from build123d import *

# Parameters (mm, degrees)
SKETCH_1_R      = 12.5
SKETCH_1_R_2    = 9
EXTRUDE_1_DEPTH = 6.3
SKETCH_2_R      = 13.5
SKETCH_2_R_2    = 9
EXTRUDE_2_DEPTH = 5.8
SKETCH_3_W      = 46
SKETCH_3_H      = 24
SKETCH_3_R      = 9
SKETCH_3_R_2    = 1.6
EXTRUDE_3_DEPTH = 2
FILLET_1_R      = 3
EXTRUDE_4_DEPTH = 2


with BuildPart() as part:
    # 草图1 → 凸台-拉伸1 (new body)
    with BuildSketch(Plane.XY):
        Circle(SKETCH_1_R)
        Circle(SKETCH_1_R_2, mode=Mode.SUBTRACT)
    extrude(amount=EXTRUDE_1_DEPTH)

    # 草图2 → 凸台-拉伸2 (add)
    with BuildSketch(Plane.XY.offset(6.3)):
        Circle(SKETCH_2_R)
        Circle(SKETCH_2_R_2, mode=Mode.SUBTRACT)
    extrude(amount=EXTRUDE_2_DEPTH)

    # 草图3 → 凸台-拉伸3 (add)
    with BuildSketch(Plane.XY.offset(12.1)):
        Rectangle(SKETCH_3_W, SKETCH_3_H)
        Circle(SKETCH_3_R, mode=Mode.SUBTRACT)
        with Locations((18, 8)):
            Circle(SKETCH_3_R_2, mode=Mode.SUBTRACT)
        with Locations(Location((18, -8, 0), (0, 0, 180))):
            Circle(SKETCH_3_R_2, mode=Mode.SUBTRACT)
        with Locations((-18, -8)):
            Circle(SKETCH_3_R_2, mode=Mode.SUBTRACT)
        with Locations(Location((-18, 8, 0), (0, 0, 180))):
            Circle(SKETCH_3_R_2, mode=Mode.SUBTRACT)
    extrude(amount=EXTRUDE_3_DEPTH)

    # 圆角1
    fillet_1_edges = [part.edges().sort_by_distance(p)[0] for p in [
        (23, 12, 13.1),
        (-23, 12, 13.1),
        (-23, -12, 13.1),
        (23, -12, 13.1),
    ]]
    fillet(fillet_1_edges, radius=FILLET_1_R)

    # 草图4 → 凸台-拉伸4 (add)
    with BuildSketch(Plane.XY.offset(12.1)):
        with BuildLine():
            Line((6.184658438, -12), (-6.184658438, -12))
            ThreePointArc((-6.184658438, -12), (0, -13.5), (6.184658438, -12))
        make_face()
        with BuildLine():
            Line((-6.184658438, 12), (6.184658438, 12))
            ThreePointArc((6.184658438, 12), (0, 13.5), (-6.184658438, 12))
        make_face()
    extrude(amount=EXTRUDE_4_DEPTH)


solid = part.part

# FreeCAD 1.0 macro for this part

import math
import FreeCAD as App
import Part
import Sketcher
from FreeCAD import Vector


def edges_at(feature, points):
    """Names of the edges that pass closest to the given points."""
    edges = feature.Shape.Edges
    near = lambda p: min(range(len(edges)), key=lambda i: edges[i].distToShape(Part.Vertex(*p))[0])
    return sorted({f"Edge{near(p) + 1}" for p in points})


def add_polygon(sketch, points):
    """Adds a closed chain of lines whose ends are joined by coincident constraints."""
    first, n = sketch.GeometryCount, len(points)
    for a, b in zip(points, points[1:] + points[:1]):
        sketch.addGeometry(Part.LineSegment(App.Vector(*a, 0), App.Vector(*b, 0)), False)
    for i in range(n):
        sketch.addConstraint(Sketcher.Constraint("Coincident", first + i, 2, first + (i + 1) % n, 1))

doc = App.newDocument("Part")
body = doc.addObject("PartDesign::Body", "Body")

# Sketch on XY plane
sketch1 = body.newObject("Sketcher::SketchObject", "Sketch")
sketch1.AttachmentSupport = (doc.getObject("XY_Plane"), [""])
sketch1.MapMode = "FlatFace"
sketch1.addGeometry([
    Part.Circle(Vector(0, 0, 0), Vector(0, 0, 1), 12),
    Part.Circle(Vector(0, 0, 0), Vector(0, 0, 1), 9),
], False)
sketch1.addConstraint([
    Sketcher.Constraint("Coincident", 0, 3, -1, 1),
    Sketcher.Constraint("Coincident", 1, 3, -1, 1),
    Sketcher.Constraint("Diameter", 0, 25.0),
    Sketcher.Constraint("Diameter", 1, 18.0),
])
pad1 = body.newObject("PartDesign::Pad", "Pad")
pad1.Profile = sketch1
pad1.Length = 6.3

# Sketch on XY plane
sketch2 = body.newObject("Sketcher::SketchObject", "Sketch001")
sketch2.AttachmentSupport = (doc.getObject("XY_Plane"), [""])
sketch2.MapMode = "FlatFace"
sketch2.AttachmentOffset = App.Placement(Vector(0, 0, 6.3), App.Rotation())
sketch2.addGeometry([
    Part.Circle(Vector(0, 0, 0), Vector(0, 0, 1), 14),
    Part.Circle(Vector(0, 0, 0), Vector(0, 0, 1), 9),
], False)
sketch2.addConstraint([
    Sketcher.Constraint("Coincident", 0, 3, -1, 1),
    Sketcher.Constraint("Coincident", 1, 3, -1, 1),
    Sketcher.Constraint("Diameter", 0, 27.0),
    Sketcher.Constraint("Diameter", 1, 18.0),
])
pad2 = body.newObject("PartDesign::Pad", "Pad001")
pad2.Profile = sketch2
pad2.Length = 5.8

# Sketch on XY plane
sketch3 = body.newObject("Sketcher::SketchObject", "Sketch002")
sketch3.AttachmentSupport = (doc.getObject("XY_Plane"), [""])
sketch3.MapMode = "FlatFace"
sketch3.AttachmentOffset = App.Placement(Vector(0, 0, 12.1), App.Rotation())
add_polygon(sketch3, [(-23, 12), (-23, -12), (23, -12), (23, 12)])  # lines 0-3
sketch3.addGeometry(Part.Circle(Vector(-18, -8, 0), Vector(0, 0, 1), 1.6), False)  # 4
sketch3.addGeometry(Part.Circle(Vector(18, -8, 0), Vector(0, 0, 1), 1.6), False)  # 5
sketch3.addGeometry(Part.Circle(Vector(-18, 8, 0), Vector(0, 0, 1), 1.6), False)  # 6
sketch3.addGeometry(Part.Circle(Vector(0, 0, 0), Vector(0, 0, 1), 9), False)  # 7
sketch3.addGeometry(Part.Circle(Vector(18, 8, 0), Vector(0, 0, 1), 1.6), False)  # 8
sketch3.addConstraint([
    Sketcher.Constraint("Vertical", 0),
    Sketcher.Constraint("Horizontal", 1),
    Sketcher.Constraint("Vertical", 2),
    Sketcher.Constraint("Horizontal", 3),
    Sketcher.Constraint("Coincident", 7, 3, -1, 1),
    Sketcher.Constraint("Equal", 4, 5),
    Sketcher.Constraint("Equal", 5, 6),
    Sketcher.Constraint("Equal", 6, 8),
    Sketcher.Constraint("Symmetric", 5, 3, 6, 3, -1, 1),
    Sketcher.Constraint("Symmetric", 4, 3, 8, 3, -1, 1),
    Sketcher.Constraint("Symmetric", 0, 2, 2, 2, -1, 1),
    Sketcher.Constraint("Symmetric", 4, 3, 5, 3, -2),
    Sketcher.Constraint("Diameter", 7, 18.0),
    Sketcher.Constraint("Diameter", 4, 3.2),
    Sketcher.Constraint("DistanceX", 1, 1, 1, 2, 46.0),
    Sketcher.Constraint("DistanceY", 0, 2, 0, 1, 24.0),
    Sketcher.Constraint("DistanceX", 4, 3, -1, 1, 18.0),
    Sketcher.Constraint("DistanceY", 4, 3, -1, 1, 8.0),
])
pad3 = body.newObject("PartDesign::Pad", "Pad002")
pad3.Profile = sketch3
pad3.Length = 2
doc.recompute()

fillet = body.newObject("PartDesign::Fillet", "Fillet")
fillet.Base = (pad3, edges_at(pad3, [
    (23, 12, 13.1),
    (-23, 12, 13.1),
    (-23, -12, 13.1),
    (23, -12, 13.1),
]))
fillet.Radius = 3

# Sketch on XY plane
sketch4 = body.newObject("Sketcher::SketchObject", "Sketch003")
sketch4.AttachmentSupport = (doc.getObject("XY_Plane"), [""])
sketch4.MapMode = "FlatFace"
sketch4.AttachmentOffset = App.Placement(Vector(0, 0, 12.1), App.Rotation())
sketch4.addGeometry([
    Part.LineSegment(Vector(6, -12, 0), Vector(-6, -12, 0)),
    Part.ArcOfCircle(Part.Circle(Vector(0, 0, 0), Vector(0, 0, 1), 13), math.radians(-117), math.radians(-63)),
    Part.LineSegment(Vector(-6, 12, 0), Vector(6, 12, 0)),
    Part.ArcOfCircle(Part.Circle(Vector(0, 0, 0), Vector(0, 0, 1), 13), math.radians(63), math.radians(117)),
], False)
sketch4.addConstraint([
    Sketcher.Constraint("Coincident", 0, 1, 1, 2),
    Sketcher.Constraint("Coincident", 1, 1, 0, 2),
    Sketcher.Constraint("Coincident", 2, 1, 3, 2),
    Sketcher.Constraint("Coincident", 3, 1, 2, 2),
    Sketcher.Constraint("Horizontal", 0),
    Sketcher.Constraint("Horizontal", 2),
    Sketcher.Constraint("Coincident", 1, 3, -1, 1),
    Sketcher.Constraint("Coincident", 3, 3, -1, 1),
    Sketcher.Constraint("Equal", 1, 3),
    Sketcher.Constraint("Vertical", 1, 1, 2, 1),
    Sketcher.Constraint("Radius", 1, 13.5),
    Sketcher.Constraint("DistanceY", 0, 1, -1, 1, 12.0),
])
pad4 = body.newObject("PartDesign::Pad", "Pad003")
pad4.Profile = sketch4
pad4.Length = 2

doc.recompute()
